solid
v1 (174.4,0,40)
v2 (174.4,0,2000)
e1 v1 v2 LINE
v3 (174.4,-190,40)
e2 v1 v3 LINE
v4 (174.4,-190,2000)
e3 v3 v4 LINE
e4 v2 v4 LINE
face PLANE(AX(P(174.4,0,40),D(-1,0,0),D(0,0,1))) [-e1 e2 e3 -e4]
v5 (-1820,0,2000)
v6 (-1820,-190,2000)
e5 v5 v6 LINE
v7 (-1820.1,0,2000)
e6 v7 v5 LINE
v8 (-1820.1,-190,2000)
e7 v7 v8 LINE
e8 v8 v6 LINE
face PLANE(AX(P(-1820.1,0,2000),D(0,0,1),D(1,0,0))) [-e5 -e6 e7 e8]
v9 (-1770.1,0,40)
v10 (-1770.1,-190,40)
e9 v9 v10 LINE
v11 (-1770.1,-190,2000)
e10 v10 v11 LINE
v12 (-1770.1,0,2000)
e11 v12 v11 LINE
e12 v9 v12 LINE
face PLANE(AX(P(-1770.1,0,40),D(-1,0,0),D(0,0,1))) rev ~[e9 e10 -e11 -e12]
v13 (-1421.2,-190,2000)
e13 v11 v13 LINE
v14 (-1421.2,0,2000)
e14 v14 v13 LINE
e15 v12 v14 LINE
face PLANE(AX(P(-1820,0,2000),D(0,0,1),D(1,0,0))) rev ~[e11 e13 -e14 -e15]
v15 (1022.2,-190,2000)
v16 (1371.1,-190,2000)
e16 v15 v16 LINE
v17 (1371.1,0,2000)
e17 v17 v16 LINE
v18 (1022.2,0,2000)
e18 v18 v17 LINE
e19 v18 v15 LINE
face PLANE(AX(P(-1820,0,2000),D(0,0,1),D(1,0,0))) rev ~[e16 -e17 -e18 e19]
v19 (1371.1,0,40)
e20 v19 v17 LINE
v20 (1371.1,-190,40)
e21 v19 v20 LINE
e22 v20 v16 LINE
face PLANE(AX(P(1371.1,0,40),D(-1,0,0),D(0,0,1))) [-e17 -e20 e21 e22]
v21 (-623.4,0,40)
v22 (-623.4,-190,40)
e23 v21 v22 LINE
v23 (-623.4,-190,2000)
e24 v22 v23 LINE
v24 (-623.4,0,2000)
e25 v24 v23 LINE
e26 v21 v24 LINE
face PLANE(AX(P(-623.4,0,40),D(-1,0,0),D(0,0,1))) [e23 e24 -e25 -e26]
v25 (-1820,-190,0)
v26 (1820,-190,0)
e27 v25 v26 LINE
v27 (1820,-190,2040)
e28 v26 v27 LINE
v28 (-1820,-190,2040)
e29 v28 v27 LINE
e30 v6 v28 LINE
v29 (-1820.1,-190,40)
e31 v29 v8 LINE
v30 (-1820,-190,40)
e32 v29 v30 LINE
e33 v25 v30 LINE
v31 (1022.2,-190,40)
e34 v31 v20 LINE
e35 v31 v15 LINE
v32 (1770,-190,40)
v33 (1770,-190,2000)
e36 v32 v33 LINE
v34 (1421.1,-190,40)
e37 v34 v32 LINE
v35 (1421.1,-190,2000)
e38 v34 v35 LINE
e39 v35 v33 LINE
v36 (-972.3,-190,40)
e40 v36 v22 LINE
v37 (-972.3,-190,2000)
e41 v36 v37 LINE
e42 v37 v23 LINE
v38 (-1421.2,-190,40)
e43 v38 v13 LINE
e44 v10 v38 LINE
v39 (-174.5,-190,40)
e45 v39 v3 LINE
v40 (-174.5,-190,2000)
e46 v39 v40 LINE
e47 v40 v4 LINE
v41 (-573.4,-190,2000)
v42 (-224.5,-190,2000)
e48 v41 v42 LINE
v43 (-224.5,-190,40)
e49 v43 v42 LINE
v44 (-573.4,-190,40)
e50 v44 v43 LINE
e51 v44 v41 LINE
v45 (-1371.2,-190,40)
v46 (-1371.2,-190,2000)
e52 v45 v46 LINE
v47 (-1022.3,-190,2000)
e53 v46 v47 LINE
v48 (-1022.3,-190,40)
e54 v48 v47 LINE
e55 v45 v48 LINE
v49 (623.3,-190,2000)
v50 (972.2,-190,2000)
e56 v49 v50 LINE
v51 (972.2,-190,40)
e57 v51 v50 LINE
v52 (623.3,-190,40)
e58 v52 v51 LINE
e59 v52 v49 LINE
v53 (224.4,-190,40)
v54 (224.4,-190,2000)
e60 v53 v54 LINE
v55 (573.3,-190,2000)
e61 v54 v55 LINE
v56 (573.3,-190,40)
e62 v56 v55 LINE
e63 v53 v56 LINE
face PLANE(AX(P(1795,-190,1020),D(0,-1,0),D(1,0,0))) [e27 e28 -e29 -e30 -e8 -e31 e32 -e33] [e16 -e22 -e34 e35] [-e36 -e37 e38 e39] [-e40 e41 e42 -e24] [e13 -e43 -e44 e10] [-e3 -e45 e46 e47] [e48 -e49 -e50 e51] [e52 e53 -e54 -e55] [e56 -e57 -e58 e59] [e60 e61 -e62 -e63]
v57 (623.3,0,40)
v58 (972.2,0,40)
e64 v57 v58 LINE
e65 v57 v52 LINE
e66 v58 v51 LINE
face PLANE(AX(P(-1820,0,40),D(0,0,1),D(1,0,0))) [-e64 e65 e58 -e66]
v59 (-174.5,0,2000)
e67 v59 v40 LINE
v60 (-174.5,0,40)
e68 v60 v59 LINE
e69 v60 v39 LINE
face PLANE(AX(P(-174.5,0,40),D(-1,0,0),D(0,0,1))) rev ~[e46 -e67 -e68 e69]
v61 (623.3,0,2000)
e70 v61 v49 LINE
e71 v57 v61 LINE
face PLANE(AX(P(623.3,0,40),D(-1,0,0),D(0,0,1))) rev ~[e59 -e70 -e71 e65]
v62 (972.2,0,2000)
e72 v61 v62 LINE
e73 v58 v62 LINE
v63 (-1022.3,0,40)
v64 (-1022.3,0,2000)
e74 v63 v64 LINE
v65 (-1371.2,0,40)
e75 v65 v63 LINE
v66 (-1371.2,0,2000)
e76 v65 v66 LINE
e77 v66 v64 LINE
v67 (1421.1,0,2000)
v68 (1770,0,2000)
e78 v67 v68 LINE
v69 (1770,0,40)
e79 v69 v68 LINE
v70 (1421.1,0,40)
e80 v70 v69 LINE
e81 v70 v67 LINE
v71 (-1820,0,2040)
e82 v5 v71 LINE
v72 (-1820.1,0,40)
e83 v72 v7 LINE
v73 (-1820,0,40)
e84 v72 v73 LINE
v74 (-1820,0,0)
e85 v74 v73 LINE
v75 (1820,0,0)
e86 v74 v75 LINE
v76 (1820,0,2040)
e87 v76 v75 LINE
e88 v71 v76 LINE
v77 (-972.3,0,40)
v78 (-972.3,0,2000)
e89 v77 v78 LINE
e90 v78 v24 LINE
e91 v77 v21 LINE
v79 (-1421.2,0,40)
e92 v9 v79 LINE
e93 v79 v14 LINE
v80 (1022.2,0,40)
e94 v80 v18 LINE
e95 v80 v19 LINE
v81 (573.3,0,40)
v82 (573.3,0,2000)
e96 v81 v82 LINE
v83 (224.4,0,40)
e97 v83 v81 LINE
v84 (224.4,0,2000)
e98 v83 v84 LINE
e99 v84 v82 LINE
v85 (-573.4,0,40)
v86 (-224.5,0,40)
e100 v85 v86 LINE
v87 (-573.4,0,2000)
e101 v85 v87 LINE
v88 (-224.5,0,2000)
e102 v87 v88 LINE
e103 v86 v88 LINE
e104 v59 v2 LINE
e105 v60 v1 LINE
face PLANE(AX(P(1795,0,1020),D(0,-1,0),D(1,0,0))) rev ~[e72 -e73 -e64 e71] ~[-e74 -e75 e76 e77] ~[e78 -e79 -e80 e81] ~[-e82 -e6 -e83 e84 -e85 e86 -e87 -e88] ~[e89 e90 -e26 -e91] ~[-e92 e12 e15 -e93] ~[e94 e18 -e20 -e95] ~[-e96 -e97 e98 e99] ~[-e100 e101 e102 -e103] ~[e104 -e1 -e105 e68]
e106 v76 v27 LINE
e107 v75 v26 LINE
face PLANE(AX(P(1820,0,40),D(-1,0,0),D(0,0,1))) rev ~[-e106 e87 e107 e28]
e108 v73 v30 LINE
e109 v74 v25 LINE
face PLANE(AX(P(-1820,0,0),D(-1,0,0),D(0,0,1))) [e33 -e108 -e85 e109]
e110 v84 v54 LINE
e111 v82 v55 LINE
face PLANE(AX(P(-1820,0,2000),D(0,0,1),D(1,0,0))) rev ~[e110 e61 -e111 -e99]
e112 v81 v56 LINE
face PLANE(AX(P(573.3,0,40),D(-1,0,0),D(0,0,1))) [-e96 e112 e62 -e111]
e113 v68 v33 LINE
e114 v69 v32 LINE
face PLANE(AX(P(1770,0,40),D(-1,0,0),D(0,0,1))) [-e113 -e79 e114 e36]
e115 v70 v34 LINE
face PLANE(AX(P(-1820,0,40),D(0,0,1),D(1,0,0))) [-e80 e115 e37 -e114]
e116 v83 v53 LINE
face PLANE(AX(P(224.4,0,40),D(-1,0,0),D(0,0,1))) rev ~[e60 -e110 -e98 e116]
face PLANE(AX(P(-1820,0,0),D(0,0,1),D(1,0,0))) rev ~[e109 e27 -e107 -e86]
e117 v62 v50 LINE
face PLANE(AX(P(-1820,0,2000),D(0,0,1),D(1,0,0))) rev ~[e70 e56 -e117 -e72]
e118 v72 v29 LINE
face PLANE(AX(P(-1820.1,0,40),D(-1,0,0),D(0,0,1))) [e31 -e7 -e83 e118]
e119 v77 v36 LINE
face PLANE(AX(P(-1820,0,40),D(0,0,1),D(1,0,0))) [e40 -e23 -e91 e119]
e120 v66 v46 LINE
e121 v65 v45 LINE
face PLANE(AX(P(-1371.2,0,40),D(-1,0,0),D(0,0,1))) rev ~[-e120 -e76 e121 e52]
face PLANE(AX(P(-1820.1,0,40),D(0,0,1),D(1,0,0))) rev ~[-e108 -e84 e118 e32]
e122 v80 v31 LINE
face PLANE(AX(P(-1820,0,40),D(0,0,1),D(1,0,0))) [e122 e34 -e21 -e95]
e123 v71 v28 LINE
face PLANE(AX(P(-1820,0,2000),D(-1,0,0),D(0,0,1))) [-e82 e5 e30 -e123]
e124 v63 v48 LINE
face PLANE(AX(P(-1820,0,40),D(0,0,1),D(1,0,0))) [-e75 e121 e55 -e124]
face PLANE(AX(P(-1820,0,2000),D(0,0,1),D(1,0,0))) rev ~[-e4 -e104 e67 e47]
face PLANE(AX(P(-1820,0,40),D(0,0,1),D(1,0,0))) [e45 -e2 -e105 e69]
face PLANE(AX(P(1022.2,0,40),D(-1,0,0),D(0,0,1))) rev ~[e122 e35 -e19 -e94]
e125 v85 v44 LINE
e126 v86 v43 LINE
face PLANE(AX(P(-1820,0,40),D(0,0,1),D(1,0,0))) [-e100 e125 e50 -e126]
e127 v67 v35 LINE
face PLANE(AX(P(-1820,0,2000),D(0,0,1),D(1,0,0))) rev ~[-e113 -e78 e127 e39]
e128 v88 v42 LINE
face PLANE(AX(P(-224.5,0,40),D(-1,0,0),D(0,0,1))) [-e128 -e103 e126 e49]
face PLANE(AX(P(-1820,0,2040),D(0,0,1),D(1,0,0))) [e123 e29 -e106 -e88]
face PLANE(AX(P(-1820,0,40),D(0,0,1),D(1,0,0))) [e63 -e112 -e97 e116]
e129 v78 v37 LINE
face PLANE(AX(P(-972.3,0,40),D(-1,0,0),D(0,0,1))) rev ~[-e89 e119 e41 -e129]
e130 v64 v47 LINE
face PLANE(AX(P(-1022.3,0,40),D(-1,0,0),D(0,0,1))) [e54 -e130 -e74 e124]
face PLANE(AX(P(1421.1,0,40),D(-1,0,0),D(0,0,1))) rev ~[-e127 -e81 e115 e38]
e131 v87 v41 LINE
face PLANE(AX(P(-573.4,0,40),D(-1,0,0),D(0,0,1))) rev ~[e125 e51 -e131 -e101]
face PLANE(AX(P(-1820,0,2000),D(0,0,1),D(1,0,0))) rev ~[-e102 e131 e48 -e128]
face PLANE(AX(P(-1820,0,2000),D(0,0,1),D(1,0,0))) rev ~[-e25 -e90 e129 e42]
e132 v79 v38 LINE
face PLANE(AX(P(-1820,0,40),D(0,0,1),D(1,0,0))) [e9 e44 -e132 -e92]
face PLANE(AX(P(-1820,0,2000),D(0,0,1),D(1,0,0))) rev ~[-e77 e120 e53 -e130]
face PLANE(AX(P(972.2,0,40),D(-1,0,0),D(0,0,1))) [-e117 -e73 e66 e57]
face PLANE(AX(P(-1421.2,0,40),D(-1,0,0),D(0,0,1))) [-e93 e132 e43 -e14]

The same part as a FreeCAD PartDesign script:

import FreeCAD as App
import Part
import Sketcher


def add_polygon(sketch, points):
    """Adds a closed chain of lines whose ends are joined by coincident constraints."""
    first, n = sketch.GeometryCount, len(points)
    for a, b in zip(points, points[1:] + points[:1]):
        sketch.addGeometry(Part.LineSegment(App.Vector(*a, 0), App.Vector(*b, 0)), False)
    for i in range(n):
        sketch.addConstraint(Sketcher.Constraint("Coincident", first + i, 2, first + (i + 1) % n, 1))

doc = App.newDocument("Part")
body = doc.addObject("PartDesign::Body", "Body")

sketch1 = doc.addObject("Sketcher::SketchObject", "Sketch")
body.addObject(sketch1)
sketch1.AttachmentSupport = (doc.XZ_Plane, [""])
sketch1.MapMode = "FlatFace"
add_polygon(sketch1, [(-1820, 40), (-1820, 0), (1820, 0), (1820, 40)])
sketch1.addConstraint(Sketcher.Constraint("Vertical", 0))
sketch1.addConstraint(Sketcher.Constraint("Horizontal", 1))
sketch1.addConstraint(Sketcher.Constraint("Vertical", 2))
sketch1.addConstraint(Sketcher.Constraint("Horizontal", 3))
sketch1.addConstraint(Sketcher.Constraint("Symmetric", 0, 2, 1, 2, -1, 1))
sketch1.addConstraint(Sketcher.Constraint("DistanceX", 1, 1, 1, 2, 3640.0))
sketch1.addConstraint(Sketcher.Constraint("DistanceY", 0, 2, 0, 1, 40.0))
pad1 = doc.addObject("PartDesign::Pad", "Pad")
body.addObject(pad1)
pad1.Profile = sketch1
pad1.Length = 190
body2 = doc.addObject("PartDesign::Body", "Body001")

sketch2 = doc.addObject("Sketcher::SketchObject", "Sketch001")
body2.addObject(sketch2)
sketch2.AttachmentSupport = (doc.getObject("XZ_Plane001"), [""])
sketch2.MapMode = "FlatFace"
add_polygon(sketch2, [(-1820, 2040), (-1820, 2000), (1820, 2000), (1820, 2040)])
sketch2.addConstraint(Sketcher.Constraint("Vertical", 0))
sketch2.addConstraint(Sketcher.Constraint("Horizontal", 1))
sketch2.addConstraint(Sketcher.Constraint("Vertical", 2))
sketch2.addConstraint(Sketcher.Constraint("Horizontal", 3))
sketch2.addConstraint(Sketcher.Constraint("DistanceX", 1, 1, 1, 2, 3640.0))
sketch2.addConstraint(Sketcher.Constraint("DistanceY", 0, 2, 0, 1, 40.0))
sketch2.addConstraint(Sketcher.Constraint("DistanceX", 0, 2, -1, 1, 1820.0))
sketch2.addConstraint(Sketcher.Constraint("DistanceY", -1, 1, 0, 2, 2000.0))
pad2 = doc.addObject("PartDesign::Pad", "Pad001")
body2.addObject(pad2)
pad2.Profile = sketch2
pad2.Length = 190
body.AllowCompound = True
doc.recompute()

boolean = doc.addObject("PartDesign::Boolean", "Boolean")
body.addObject(boolean)
boolean.Type = "Fuse"
boolean.addObjects([body2])

sketch3 = doc.addObject("Sketcher::SketchObject", "Sketch002")
body.addObject(sketch3)
sketch3.AttachmentSupport = (doc.XZ_Plane, [""])
sketch3.MapMode = "FlatFace"
add_polygon(sketch3, [(1770, 2000), (1770, 40), (1820, 40), (1820, 2000)])
add_polygon(sketch3, [(1371.1, 2000), (1371.1, 40), (1421.1, 40), (1421.1, 2000)])
add_polygon(sketch3, [(972.2, 2000), (972.2, 40), (1022.2, 40), (1022.2, 2000)])
add_polygon(sketch3, [(573.3, 2000), (573.3, 40), (623.3, 40), (623.3, 2000)])
add_polygon(sketch3, [(174.4, 2000), (174.4, 40), (224.4, 40), (224.4, 2000)])
add_polygon(sketch3, [(-224.5, 2000), (-224.5, 40), (-174.5, 40), (-174.5, 2000)])
add_polygon(sketch3, [(-623.4, 2000), (-623.4, 40), (-573.4, 40), (-573.4, 2000)])
add_polygon(sketch3, [(-1022.3, 2000), (-1022.3, 40), (-972.3, 40), (-972.3, 2000)])
add_polygon(sketch3, [(-1421.2, 2000), (-1421.2, 40), (-1371.2, 40), (-1371.2, 2000)])
add_polygon(sketch3, [(-1820.1, 2000), (-1820.1, 40), (-1770.1, 40), (-1770.1, 2000)])
sketch3.addConstraint(Sketcher.Constraint("Vertical", 0))
sketch3.addConstraint(Sketcher.Constraint("Horizontal", 1))
sketch3.addConstraint(Sketcher.Constraint("Vertical", 2))
sketch3.addConstraint(Sketcher.Constraint("Horizontal", 3))
sketch3.addConstraint(Sketcher.Constraint("Vertical", 4))
sketch3.addConstraint(Sketcher.Constraint("Horizontal", 5))
sketch3.addConstraint(Sketcher.Constraint("Vertical", 6))
sketch3.addConstraint(Sketcher.Constraint("Horizontal", 7))
sketch3.addConstraint(Sketcher.Constraint("Vertical", 8))
sketch3.addConstraint(Sketcher.Constraint("Horizontal", 9))
sketch3.addConstraint(Sketcher.Constraint("Vertical", 10))
sketch3.addConstraint(Sketcher.Constraint("Horizontal", 11))
sketch3.addConstraint(Sketcher.Constraint("Vertical", 12))
sketch3.addConstraint(Sketcher.Constraint("Horizontal", 13))
sketch3.addConstraint(Sketcher.Constraint("Vertical", 14))
sketch3.addConstraint(Sketcher.Constraint("Horizontal", 15))
sketch3.addConstraint(Sketcher.Constraint("Vertical", 16))
sketch3.addConstraint(Sketcher.Constraint("Horizontal", 17))
sketch3.addConstraint(Sketcher.Constraint("Vertical", 18))
sketch3.addConstraint(Sketcher.Constraint("Horizontal", 19))
sketch3.addConstraint(Sketcher.Constraint("Vertical", 20))
sketch3.addConstraint(Sketcher.Constraint("Horizontal", 21))
sketch3.addConstraint(Sketcher.Constraint("Vertical", 22))
sketch3.addConstraint(Sketcher.Constraint("Horizontal", 23))
sketch3.addConstraint(Sketcher.Constraint("Vertical", 24))
sketch3.addConstraint(Sketcher.Constraint("Horizontal", 25))
sketch3.addConstraint(Sketcher.Constraint("Vertical", 26))
sketch3.addConstraint(Sketcher.Constraint("Horizontal", 27))
sketch3.addConstraint(Sketcher.Constraint("Vertical", 28))
sketch3.addConstraint(Sketcher.Constraint("Horizontal", 29))
sketch3.addConstraint(Sketcher.Constraint("Vertical", 30))
sketch3.addConstraint(Sketcher.Constraint("Horizontal", 31))
sketch3.addConstraint(Sketcher.Constraint("Vertical", 32))
sketch3.addConstraint(Sketcher.Constraint("Horizontal", 33))
sketch3.addConstraint(Sketcher.Constraint("Vertical", 34))
sketch3.addConstraint(Sketcher.Constraint("Horizontal", 35))
sketch3.addConstraint(Sketcher.Constraint("Vertical", 36))
sketch3.addConstraint(Sketcher.Constraint("Horizontal", 37))
sketch3.addConstraint(Sketcher.Constraint("Vertical", 38))
sketch3.addConstraint(Sketcher.Constraint("Horizontal", 39))
sketch3.addConstraint(Sketcher.Constraint("Horizontal", 1, 2, 4, 2))
sketch3.addConstraint(Sketcher.Constraint("Horizontal", 3, 2, 6, 2))
sketch3.addConstraint(Sketcher.Constraint("Horizontal", 5, 2, 8, 2))
sketch3.addConstraint(Sketcher.Constraint("Horizontal", 7, 2, 10, 2))
sketch3.addConstraint(Sketcher.Constraint("Horizontal", 9, 2, 12, 2))
sketch3.addConstraint(Sketcher.Constraint("Horizontal", 11, 2, 14, 2))
sketch3.addConstraint(Sketcher.Constraint("Horizontal", 13, 2, 16, 2))
sketch3.addConstraint(Sketcher.Constraint("Horizontal", 15, 2, 18, 2))
sketch3.addConstraint(Sketcher.Constraint("Horizontal", 17, 2, 20, 2))
sketch3.addConstraint(Sketcher.Constraint("Horizontal", 19, 2, 22, 2))
sketch3.addConstraint(Sketcher.Constraint("Horizontal", 21, 2, 24, 2))
sketch3.addConstraint(Sketcher.Constraint("Horizontal", 23, 2, 26, 2))
sketch3.addConstraint(Sketcher.Constraint("Horizontal", 25, 2, 28, 2))
sketch3.addConstraint(Sketcher.Constraint("Horizontal", 27, 2, 30, 2))
sketch3.addConstraint(Sketcher.Constraint("Horizontal", 29, 2, 32, 2))
sketch3.addConstraint(Sketcher.Constraint("Horizontal", 31, 2, 34, 2))
sketch3.addConstraint(Sketcher.Constraint("Horizontal", 33, 2, 36, 2))
sketch3.addConstraint(Sketcher.Constraint("Horizontal", 35, 2, 38, 2))
sketch3.addConstraint(Sketcher.Constraint("Equal", 3, 5))
sketch3.addConstraint(Sketcher.Constraint("Equal", 7, 9))
sketch3.addConstraint(Sketcher.Constraint("Equal", 11, 13))
sketch3.addConstraint(Sketcher.Constraint("Equal", 15, 17))
sketch3.addConstraint(Sketcher.Constraint("Equal", 19, 21))
sketch3.addConstraint(Sketcher.Constraint("Equal", 23, 25))
sketch3.addConstraint(Sketcher.Constraint("Equal", 27, 29))
sketch3.addConstraint(Sketcher.Constraint("Equal", 31, 33))
sketch3.addConstraint(Sketcher.Constraint("Equal", 35, 37))
sketch3.addConstraint(Sketcher.Constraint("DistanceX", 1, 1, 1, 2, 50.0))
sketch3.addConstraint(Sketcher.Constraint("DistanceY", 0, 2, 0, 1, 1960.0))
sketch3.addConstraint(Sketcher.Constraint("DistanceX", -1, 1, 0, 2, 1770.0))
sketch3.addConstraint(Sketcher.Constraint("DistanceY", -1, 1, 0, 2, 40.0))
sketch3.addConstraint(Sketcher.Constraint("DistanceX", -1, 1, 4, 2, 1371.1))
sketch3.addConstraint(Sketcher.Constraint("DistanceX", -1, 1, 8, 2, 972.2))
sketch3.addConstraint(Sketcher.Constraint("DistanceX", -1, 1, 12, 2, 573.3))
sketch3.addConstraint(Sketcher.Constraint("DistanceX", -1, 1, 16, 2, 174.4))
sketch3.addConstraint(Sketcher.Constraint("DistanceX", 20, 2, -1, 1, 224.5))
sketch3.addConstraint(Sketcher.Constraint("DistanceX", 24, 2, -1, 1, 623.4))
sketch3.addConstraint(Sketcher.Constraint("DistanceX", 28, 2, -1, 1, 1022.3))
sketch3.addConstraint(Sketcher.Constraint("DistanceX", 32, 2, -1, 1, 1421.2))
sketch3.addConstraint(Sketcher.Constraint("DistanceX", 36, 2, -1, 1, 1820.1))
pad3 = doc.addObject("PartDesign::Pad", "Pad002")
body.addObject(pad3)
pad3.Profile = sketch3
pad3.Length = 190

doc.recompute()
